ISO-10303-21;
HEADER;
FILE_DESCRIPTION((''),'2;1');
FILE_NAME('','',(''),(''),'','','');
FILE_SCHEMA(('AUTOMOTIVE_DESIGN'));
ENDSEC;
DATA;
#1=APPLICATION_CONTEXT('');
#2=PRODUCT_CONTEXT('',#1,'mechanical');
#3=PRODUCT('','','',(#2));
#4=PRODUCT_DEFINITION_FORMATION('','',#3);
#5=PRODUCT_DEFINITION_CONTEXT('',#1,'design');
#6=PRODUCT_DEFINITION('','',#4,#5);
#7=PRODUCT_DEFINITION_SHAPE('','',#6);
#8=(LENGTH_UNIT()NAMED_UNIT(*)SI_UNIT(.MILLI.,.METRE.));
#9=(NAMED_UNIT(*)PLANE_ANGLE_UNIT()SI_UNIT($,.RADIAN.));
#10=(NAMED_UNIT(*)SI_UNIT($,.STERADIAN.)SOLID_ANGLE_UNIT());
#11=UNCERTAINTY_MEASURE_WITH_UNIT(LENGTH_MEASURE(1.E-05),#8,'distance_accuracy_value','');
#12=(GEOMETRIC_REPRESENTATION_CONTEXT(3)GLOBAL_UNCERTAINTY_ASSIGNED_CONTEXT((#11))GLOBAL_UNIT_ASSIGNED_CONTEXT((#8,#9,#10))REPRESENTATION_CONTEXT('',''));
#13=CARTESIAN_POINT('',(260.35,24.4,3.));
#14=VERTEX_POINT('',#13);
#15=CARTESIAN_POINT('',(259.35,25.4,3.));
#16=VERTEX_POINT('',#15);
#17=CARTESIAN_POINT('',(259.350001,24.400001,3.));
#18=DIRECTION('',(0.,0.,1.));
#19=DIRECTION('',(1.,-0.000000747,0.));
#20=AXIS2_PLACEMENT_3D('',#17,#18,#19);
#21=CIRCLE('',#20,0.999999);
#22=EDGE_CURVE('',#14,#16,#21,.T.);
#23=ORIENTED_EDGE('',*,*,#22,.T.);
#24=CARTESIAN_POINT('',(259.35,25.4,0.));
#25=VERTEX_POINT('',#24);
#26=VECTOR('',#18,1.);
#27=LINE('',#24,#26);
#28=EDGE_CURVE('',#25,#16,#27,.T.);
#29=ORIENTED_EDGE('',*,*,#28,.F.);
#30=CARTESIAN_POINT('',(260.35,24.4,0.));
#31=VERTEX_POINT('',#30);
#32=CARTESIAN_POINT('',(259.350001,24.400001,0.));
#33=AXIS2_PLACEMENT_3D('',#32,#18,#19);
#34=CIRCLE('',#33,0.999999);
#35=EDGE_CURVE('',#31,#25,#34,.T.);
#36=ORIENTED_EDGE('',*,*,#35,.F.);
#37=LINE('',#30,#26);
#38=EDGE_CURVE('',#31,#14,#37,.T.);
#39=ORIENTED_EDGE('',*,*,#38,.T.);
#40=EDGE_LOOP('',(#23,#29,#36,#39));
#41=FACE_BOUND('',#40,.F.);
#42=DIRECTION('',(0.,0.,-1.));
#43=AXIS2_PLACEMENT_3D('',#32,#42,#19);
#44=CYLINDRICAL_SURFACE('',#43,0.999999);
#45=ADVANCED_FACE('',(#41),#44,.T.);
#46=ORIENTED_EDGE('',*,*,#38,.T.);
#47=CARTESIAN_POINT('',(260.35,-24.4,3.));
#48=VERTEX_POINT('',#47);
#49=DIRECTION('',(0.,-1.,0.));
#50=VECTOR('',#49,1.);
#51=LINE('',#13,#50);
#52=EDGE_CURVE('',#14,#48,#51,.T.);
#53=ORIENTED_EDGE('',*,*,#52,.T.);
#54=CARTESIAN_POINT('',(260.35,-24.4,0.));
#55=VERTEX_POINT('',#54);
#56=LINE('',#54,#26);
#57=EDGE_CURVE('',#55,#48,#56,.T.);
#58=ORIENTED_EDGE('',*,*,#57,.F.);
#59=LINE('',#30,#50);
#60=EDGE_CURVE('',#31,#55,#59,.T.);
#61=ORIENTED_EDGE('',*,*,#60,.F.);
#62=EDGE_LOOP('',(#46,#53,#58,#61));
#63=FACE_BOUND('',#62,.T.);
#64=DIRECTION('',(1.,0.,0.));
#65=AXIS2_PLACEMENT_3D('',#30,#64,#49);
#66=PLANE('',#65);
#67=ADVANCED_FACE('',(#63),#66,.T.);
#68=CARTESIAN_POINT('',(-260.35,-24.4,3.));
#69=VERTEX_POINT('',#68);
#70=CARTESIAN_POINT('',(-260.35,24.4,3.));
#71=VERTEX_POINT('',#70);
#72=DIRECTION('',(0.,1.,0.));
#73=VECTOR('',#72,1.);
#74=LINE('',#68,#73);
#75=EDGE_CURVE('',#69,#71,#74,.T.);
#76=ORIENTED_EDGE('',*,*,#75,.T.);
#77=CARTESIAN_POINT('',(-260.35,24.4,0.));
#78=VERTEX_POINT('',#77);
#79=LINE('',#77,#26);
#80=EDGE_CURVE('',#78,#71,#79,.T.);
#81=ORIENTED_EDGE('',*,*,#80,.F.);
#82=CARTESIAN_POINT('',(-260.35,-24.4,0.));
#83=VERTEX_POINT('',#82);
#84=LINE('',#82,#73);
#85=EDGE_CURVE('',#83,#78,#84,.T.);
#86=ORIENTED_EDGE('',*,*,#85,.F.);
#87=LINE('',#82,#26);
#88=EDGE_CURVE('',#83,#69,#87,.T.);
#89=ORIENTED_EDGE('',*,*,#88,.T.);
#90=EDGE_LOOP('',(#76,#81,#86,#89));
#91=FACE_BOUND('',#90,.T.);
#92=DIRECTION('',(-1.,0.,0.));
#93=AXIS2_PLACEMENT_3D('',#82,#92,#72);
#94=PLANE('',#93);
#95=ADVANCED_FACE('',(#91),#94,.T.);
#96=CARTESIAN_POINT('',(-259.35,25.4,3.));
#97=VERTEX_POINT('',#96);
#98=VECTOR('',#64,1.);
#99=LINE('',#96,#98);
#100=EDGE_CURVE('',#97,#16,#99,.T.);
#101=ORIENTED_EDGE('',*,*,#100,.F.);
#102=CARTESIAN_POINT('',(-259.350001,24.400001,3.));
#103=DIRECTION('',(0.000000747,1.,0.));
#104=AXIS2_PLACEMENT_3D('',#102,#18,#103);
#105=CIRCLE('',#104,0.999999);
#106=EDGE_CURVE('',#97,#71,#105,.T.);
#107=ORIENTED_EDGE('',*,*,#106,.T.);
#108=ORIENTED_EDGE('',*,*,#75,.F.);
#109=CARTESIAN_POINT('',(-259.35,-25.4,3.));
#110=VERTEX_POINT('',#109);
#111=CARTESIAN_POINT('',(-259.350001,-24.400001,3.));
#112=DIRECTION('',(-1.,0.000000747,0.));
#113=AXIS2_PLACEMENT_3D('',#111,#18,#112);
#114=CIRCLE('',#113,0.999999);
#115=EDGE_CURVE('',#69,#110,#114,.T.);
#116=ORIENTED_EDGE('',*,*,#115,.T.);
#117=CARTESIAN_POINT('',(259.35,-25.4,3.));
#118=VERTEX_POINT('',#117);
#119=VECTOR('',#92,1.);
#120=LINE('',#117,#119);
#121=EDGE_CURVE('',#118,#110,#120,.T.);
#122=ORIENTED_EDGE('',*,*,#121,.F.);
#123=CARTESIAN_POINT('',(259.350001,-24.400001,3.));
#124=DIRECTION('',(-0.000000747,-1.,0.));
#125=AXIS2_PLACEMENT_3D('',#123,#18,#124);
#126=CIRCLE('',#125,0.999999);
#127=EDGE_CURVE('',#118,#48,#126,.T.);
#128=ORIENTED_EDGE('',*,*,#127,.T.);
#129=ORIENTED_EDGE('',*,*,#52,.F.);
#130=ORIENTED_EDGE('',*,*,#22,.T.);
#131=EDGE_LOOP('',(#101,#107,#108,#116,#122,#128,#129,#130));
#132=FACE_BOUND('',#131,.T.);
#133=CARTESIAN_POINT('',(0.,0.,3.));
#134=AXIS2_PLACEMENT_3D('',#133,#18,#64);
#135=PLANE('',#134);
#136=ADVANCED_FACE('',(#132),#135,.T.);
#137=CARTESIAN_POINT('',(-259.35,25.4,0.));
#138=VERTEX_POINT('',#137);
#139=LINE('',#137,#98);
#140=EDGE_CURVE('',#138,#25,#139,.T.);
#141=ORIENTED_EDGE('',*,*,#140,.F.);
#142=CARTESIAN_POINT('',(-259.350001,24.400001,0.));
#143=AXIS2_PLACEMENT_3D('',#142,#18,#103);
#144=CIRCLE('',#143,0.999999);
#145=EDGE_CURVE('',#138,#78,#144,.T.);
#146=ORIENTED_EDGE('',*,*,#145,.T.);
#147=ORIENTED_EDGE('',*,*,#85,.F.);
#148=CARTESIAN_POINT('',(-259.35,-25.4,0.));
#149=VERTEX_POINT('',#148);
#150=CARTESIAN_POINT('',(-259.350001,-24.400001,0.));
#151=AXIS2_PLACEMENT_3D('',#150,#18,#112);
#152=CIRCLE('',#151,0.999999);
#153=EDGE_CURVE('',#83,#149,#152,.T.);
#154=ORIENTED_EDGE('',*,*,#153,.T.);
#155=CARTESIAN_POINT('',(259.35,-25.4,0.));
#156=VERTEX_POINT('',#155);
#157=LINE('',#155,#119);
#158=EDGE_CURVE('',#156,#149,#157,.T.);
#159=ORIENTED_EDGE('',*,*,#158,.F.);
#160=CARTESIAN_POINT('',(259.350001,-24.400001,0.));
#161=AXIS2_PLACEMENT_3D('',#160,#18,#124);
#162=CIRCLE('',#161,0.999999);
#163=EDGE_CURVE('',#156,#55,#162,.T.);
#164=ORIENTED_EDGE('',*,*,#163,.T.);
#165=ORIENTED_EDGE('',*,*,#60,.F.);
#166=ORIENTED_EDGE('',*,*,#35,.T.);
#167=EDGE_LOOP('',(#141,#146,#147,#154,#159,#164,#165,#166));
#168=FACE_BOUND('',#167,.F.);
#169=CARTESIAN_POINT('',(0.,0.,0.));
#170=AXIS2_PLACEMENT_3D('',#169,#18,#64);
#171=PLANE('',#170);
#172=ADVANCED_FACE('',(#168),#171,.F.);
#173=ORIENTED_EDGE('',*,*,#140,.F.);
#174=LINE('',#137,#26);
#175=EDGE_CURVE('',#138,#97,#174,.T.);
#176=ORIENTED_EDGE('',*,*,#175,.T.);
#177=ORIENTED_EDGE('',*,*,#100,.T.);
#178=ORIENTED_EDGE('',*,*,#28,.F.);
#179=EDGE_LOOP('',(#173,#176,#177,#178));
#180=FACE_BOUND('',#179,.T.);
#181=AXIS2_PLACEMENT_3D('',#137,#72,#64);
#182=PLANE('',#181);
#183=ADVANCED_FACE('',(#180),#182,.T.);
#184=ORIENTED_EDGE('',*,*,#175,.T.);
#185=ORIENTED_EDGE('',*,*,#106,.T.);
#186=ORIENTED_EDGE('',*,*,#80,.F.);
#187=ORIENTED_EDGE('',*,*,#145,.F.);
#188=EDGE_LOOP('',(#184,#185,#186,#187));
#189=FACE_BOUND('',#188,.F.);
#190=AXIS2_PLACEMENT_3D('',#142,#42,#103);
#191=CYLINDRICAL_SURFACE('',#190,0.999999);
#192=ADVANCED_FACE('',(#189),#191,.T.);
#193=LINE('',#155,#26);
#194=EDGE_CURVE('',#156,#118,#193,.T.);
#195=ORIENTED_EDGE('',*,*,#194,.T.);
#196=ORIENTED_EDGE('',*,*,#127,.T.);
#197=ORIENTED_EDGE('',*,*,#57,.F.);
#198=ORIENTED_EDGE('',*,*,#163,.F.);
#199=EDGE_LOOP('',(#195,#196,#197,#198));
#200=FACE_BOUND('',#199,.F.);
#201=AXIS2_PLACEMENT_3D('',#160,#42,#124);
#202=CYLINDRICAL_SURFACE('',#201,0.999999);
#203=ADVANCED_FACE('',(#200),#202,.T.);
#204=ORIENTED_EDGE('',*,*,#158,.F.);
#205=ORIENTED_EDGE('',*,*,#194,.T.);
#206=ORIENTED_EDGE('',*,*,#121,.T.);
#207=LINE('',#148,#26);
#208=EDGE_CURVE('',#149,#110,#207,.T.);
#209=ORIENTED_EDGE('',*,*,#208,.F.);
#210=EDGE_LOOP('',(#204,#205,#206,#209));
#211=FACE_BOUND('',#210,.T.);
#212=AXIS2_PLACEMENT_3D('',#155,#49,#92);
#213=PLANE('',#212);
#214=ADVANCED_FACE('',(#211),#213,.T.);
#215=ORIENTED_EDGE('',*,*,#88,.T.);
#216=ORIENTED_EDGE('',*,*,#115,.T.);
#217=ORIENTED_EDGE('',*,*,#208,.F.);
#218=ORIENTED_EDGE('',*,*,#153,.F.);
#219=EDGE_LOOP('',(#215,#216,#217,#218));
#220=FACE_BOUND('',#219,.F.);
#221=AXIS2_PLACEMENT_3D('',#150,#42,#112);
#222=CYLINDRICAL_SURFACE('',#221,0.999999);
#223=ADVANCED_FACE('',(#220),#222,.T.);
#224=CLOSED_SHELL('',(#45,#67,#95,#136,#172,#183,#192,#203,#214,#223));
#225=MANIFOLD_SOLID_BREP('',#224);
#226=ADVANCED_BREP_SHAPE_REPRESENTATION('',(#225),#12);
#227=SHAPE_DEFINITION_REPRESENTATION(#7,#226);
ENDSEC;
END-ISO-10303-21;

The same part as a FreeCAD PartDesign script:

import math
import FreeCAD as App
import Part
import Sketcher

V = App.Vector

doc = App.newDocument("Part")
params = doc.addObject("Spreadsheet::Sheet", "Params")
for row, (alias, value) in enumerate([
    ("sketch1_radius", "0.999999 mm"),
    ("sketch1_width", "518.7 mm"),
    ("sketch1_height", "48.8 mm"),
    ("pad1_length", "3 mm"),
], start=1):
    params.set(f"A{row}", alias)
    params.set(f"B{row}", "=" + value)
    params.setAlias(f"B{row}", alias)

body = doc.addObject("PartDesign::Body", "Body")

sketch1 = body.newObject("Sketcher::SketchObject", "Sketch")
sketch1.AttachmentSupport = (doc.getObject("XY_Plane"), [""])
sketch1.MapMode = "FlatFace"
sketch1.addGeometry([
    Part.ArcOfCircle(Part.Circle(V(-259.4, 24.4, 0), V(0, 0, 1), 1), math.radians(90), math.radians(180)),
    Part.LineSegment(V(-260.4, 24.4, 0), V(-260.4, -24.4, 0)),
    Part.ArcOfCircle(Part.Circle(V(-259.4, -24.4, 0), V(0, 0, 1), 1), math.radians(180), math.radians(270)),
    Part.LineSegment(V(-259.4, -25.4, 0), V(259.4, -25.4, 0)),
    Part.ArcOfCircle(Part.Circle(V(259.4, -24.4, 0), V(0, 0, 1), 1), math.radians(-90), math.radians(0)),
    Part.LineSegment(V(260.4, -24.4, 0), V(260.4, 24.4, 0)),
    Part.ArcOfCircle(Part.Circle(V(259.4, 24.4, 0), V(0, 0, 1), 1), math.radians(0), math.radians(90)),
    Part.LineSegment(V(259.4, 25.4, 0), V(-259.4, 25.4, 0)),
], False)
sketch1.addConstraint([
    Sketcher.Constraint("Tangent", 0, 2, 1, 1),
    Sketcher.Constraint("Tangent", 1, 2, 2, 1),
    Sketcher.Constraint("Tangent", 2, 2, 3, 1),
    Sketcher.Constraint("Tangent", 3, 2, 4, 1),
    Sketcher.Constraint("Tangent", 4, 2, 5, 1),
    Sketcher.Constraint("Tangent", 5, 2, 6, 1),
    Sketcher.Constraint("Tangent", 6, 2, 7, 1),
    Sketcher.Constraint("Tangent", 7, 2, 0, 1),
    Sketcher.Constraint("Vertical", 1),
    Sketcher.Constraint("Horizontal", 3),
    Sketcher.Constraint("Vertical", 5),
    Sketcher.Constraint("Horizontal", 7),
    Sketcher.Constraint("Equal", 0, 2),
    Sketcher.Constraint("Equal", 2, 4),
    Sketcher.Constraint("Equal", 4, 6),
    Sketcher.Constraint("Symmetric", 0, 3, 4, 3, -1, 1),
    Sketcher.Constraint("Radius", 0, 0.999999),
    Sketcher.Constraint("DistanceX", 3, 1, 3, 2, 518.7),
    Sketcher.Constraint("DistanceY", 1, 2, 1, 1, 48.8),
])
sketch1.setExpression("Constraints[16]", "Params.sketch1_radius")
sketch1.setExpression("Constraints[17]", "Params.sketch1_width")
sketch1.setExpression("Constraints[18]", "Params.sketch1_height")
pad1 = body.newObject("PartDesign::Pad", "Pad")
pad1.Profile = sketch1
pad1.setExpression("Length", "Params.pad1_length")

doc.recompute()
